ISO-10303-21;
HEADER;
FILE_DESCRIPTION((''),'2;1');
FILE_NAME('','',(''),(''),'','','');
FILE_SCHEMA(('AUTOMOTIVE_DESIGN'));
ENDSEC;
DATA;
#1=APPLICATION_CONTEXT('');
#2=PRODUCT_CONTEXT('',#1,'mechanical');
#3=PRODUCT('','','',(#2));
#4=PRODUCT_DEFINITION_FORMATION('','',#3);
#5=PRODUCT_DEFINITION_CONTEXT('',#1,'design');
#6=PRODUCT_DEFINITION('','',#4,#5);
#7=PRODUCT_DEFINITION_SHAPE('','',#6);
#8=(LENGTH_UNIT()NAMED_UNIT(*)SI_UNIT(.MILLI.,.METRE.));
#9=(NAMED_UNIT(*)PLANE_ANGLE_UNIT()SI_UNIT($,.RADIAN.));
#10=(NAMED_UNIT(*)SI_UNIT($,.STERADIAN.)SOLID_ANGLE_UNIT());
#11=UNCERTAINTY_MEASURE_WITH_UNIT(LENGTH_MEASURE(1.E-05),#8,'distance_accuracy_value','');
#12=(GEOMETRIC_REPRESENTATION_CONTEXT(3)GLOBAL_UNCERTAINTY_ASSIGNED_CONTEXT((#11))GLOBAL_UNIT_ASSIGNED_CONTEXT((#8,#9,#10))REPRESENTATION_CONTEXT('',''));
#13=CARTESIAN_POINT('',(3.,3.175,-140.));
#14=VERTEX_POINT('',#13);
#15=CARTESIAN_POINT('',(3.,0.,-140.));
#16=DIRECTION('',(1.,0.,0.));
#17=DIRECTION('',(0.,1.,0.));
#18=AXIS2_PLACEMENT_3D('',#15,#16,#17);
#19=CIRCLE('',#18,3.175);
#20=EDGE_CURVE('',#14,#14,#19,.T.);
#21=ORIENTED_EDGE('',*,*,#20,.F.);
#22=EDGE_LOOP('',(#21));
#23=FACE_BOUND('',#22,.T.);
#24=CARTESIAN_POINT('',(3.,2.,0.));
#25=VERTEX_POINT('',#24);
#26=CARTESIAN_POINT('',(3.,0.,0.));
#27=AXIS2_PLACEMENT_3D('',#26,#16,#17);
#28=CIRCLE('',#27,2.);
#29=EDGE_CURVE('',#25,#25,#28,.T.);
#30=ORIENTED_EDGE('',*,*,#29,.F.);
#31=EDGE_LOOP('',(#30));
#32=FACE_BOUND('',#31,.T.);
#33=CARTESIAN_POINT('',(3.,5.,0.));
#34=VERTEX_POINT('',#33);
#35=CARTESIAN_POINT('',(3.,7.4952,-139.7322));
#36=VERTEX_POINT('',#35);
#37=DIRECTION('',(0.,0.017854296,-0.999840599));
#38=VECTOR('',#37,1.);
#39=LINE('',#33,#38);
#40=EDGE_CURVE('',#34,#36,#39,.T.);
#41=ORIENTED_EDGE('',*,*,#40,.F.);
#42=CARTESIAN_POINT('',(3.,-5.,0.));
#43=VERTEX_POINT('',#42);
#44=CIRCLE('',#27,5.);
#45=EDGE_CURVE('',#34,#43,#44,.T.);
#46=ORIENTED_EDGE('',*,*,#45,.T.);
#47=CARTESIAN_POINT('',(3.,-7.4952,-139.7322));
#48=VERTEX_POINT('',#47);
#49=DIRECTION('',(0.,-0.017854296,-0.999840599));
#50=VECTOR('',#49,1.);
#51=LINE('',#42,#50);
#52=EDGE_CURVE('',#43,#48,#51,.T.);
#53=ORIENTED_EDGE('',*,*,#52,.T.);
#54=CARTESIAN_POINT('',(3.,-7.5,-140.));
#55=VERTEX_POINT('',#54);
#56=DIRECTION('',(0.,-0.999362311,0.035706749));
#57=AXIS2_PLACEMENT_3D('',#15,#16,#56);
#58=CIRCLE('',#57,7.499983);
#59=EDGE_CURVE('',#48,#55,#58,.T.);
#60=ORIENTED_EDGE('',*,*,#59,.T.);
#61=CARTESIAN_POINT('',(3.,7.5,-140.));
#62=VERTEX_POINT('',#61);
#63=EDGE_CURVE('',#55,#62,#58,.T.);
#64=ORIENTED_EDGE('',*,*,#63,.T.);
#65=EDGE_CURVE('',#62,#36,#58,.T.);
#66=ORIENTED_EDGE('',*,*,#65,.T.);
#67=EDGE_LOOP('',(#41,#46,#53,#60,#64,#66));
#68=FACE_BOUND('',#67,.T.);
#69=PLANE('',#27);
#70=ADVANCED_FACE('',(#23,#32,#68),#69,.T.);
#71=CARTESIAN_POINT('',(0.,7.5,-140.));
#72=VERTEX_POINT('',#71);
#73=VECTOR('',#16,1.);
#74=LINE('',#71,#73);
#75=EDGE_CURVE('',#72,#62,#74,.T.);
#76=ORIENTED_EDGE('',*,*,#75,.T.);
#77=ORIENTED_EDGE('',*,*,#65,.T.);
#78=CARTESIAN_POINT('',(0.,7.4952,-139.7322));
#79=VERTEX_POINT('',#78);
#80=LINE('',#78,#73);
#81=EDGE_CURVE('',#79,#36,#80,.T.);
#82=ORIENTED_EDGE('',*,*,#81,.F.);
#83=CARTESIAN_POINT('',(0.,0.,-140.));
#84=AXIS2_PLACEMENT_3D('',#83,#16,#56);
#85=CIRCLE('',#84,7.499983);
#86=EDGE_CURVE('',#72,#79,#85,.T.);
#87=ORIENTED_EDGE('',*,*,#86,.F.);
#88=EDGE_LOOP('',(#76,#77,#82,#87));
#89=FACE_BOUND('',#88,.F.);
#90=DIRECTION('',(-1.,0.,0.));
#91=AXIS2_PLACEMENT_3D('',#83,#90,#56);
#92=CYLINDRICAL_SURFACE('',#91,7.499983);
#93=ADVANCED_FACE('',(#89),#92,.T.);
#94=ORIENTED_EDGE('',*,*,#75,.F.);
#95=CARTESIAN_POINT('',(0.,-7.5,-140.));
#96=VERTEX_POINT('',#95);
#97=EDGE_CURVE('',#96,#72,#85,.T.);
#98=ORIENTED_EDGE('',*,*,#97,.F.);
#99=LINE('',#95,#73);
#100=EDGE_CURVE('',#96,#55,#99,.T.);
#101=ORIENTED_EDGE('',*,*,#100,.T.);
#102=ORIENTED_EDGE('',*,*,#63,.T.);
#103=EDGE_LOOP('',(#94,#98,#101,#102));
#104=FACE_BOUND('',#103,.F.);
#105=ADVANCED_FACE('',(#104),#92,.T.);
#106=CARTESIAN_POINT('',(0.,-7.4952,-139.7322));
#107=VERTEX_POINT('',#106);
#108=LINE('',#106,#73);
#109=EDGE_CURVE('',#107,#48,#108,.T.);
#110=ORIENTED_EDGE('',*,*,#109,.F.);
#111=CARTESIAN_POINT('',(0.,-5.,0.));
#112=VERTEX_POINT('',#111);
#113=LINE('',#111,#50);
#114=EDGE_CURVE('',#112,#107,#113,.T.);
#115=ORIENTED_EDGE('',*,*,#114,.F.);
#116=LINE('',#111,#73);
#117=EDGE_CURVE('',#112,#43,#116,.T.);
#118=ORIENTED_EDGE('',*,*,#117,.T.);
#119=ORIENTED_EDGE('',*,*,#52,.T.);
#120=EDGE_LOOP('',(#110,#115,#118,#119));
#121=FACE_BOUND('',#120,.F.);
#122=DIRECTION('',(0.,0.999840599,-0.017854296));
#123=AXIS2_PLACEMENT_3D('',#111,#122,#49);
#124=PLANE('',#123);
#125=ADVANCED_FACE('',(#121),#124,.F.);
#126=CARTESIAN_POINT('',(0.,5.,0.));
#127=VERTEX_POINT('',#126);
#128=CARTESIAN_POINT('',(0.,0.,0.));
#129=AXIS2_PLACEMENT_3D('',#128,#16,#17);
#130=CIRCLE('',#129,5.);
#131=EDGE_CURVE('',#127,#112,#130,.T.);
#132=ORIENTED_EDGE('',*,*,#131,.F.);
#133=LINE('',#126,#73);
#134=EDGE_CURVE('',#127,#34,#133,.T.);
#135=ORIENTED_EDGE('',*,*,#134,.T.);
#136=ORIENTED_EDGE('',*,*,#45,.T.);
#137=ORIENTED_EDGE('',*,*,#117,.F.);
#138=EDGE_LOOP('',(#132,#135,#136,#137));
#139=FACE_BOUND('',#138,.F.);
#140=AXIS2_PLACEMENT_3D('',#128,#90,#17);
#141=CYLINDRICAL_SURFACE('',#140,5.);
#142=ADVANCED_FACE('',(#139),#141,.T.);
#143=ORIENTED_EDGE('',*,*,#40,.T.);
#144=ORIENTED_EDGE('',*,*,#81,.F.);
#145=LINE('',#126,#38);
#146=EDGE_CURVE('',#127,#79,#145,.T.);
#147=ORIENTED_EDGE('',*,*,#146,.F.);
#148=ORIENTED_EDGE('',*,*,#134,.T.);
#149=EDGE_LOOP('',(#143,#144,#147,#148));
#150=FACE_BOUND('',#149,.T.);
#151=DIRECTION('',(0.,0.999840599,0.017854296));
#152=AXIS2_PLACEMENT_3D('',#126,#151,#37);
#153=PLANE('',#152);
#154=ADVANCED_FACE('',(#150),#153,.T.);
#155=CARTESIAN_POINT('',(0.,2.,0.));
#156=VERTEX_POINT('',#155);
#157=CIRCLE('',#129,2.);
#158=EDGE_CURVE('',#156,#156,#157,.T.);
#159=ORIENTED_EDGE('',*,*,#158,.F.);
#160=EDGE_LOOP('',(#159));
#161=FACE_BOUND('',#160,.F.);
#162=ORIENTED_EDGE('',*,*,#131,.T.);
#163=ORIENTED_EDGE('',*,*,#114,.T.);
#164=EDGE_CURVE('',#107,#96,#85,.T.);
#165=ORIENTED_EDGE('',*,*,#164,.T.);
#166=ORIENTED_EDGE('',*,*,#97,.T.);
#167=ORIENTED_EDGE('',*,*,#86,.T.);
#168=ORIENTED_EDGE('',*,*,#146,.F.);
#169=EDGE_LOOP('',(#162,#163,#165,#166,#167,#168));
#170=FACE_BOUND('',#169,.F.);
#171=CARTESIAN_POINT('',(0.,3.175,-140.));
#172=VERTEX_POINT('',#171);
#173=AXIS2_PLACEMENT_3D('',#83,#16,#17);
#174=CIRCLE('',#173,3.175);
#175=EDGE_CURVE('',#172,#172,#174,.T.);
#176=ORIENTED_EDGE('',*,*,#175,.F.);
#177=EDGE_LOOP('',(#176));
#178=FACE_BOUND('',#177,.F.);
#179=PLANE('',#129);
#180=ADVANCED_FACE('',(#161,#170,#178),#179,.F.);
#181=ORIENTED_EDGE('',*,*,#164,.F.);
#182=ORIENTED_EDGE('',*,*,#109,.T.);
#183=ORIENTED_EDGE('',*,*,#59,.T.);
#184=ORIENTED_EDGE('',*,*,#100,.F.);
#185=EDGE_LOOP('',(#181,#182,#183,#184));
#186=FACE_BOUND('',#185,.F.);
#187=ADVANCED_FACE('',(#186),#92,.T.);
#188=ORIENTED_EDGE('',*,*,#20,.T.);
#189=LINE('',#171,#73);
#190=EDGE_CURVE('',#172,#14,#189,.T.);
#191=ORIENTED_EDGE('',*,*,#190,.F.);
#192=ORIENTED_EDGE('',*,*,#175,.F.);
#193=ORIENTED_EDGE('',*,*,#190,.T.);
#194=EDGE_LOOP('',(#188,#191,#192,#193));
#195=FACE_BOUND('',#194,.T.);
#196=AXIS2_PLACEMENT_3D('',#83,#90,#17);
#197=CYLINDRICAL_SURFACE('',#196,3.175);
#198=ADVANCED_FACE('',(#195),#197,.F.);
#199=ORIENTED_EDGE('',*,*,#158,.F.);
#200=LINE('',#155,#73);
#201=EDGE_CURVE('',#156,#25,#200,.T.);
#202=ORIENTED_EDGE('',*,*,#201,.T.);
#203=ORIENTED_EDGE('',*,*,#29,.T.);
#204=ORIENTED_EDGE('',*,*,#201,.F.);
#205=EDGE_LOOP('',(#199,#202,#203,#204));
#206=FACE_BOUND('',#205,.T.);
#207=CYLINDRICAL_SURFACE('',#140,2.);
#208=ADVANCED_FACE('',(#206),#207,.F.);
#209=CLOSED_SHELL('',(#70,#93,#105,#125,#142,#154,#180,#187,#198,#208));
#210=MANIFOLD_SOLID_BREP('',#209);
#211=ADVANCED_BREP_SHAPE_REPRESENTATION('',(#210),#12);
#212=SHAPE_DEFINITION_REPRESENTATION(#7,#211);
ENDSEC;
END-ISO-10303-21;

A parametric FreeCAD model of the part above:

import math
import FreeCAD as App
import Part
import Sketcher
from FreeCAD import Vector
Q = App.Units.Quantity

doc = App.newDocument("Part")
body = doc.addObject("PartDesign::Body", "Body")

# Sketch on YZ plane
sketch1 = doc.addObject("Sketcher::SketchObject", "Sketch")
body.addObject(sketch1)
sketch1.AttachmentSupport = (doc.YZ_Plane, [""])
sketch1.MapMode = "FlatFace"
sketch1.addGeometry([
    Part.LineSegment(Vector(7.5, -139.7, 0), Vector(5, 0, 0)),  # 0
    Part.ArcOfCircle(Part.Circle(Vector(0, 0, 0), Vector(0, 0, 1), 5), math.radians(0), math.radians(180)),  # 1
    Part.LineSegment(Vector(-5, 0, 0), Vector(-7.5, -139.7, 0)),  # 2
    Part.ArcOfCircle(Part.Circle(Vector(0, -140, 0), Vector(0, 0, 1), 7.5), math.radians(178), math.radians(362)),  # 3
    Part.Circle(Vector(0, -140, 0), Vector(0, 0, 1), 3.2),  # 4
    Part.Circle(Vector(0, 0, 0), Vector(0, 0, 1), 2),  # 5
], False)
sketch1.addConstraint([
    Sketcher.Constraint("Coincident", 0, 2, 1, 1),
    Sketcher.Constraint("Coincident", 1, 2, 2, 1),
    Sketcher.Constraint("Coincident", 2, 2, 3, 1),
    Sketcher.Constraint("Coincident", 3, 2, 0, 1),
    Sketcher.Constraint("Coincident", 1, 3, -1, 1),
    Sketcher.Constraint("Coincident", 5, 3, -1, 1),
    Sketcher.Constraint("Coincident", 4, 3, 3, 3),
    Sketcher.Constraint("Symmetric", 2, 2, 3, 2, -2),
    Sketcher.Constraint("PointOnObject", 0, 2, -1),
    Sketcher.Constraint("PointOnObject", 1, 2, -1),
    Sketcher.Constraint("Diameter", 5, Q("4 mm")),
    Sketcher.Constraint("Radius", 1, Q("5 mm")),
    Sketcher.Constraint("Radius", 3, Q("7.5 mm")),
    Sketcher.Constraint("Diameter", 4, Q("6.35 mm")),
    Sketcher.Constraint("DistanceY", 3, 3, -1, 1, Q("140 mm")),
    Sketcher.Constraint("Distance", 0, Q("139.7545 mm")),
])
pad1 = doc.addObject("PartDesign::Pad", "Pad")
body.addObject(pad1)
pad1.Profile = sketch1
pad1.Length = 3

doc.recompute()
